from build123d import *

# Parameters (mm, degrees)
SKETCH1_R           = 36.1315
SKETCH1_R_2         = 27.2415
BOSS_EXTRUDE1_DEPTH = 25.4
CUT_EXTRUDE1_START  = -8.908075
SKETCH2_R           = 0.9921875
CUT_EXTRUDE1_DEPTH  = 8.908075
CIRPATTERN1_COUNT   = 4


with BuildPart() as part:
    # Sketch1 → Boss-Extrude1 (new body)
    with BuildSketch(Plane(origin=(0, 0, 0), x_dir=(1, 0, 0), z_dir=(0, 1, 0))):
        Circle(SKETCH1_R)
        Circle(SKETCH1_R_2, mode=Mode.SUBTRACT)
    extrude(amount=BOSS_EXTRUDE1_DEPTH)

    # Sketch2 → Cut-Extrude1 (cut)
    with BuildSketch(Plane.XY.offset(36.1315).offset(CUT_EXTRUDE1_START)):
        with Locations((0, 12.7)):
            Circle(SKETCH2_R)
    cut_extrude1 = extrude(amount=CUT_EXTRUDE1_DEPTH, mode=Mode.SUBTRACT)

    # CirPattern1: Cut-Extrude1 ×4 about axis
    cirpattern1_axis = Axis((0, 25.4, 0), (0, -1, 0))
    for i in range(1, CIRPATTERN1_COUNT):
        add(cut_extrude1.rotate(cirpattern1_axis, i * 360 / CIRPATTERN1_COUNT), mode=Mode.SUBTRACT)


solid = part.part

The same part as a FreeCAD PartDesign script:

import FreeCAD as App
import Part
import Sketcher
from FreeCAD import Vector
Q = App.Units.Quantity

doc = App.newDocument("Part")
body = doc.addObject("PartDesign::Body", "Body")

sketch1 = body.newObject("Sketcher::SketchObject", "Sketch")
sketch1.AttachmentSupport = (doc.getObject("XZ_Plane"), [""])
sketch1.MapMode = "FlatFace"
sketch1.addGeometry(Part.Circle(Vector(0, 0, 0), Vector(0, 0, 1), 36), False)
sketch1.addGeometry(Part.Circle(Vector(0, 0, 0), Vector(0, 0, 1), 27), False)
sketch1.addConstraint(Sketcher.Constraint("Coincident", 0, 3, -1, 1))
sketch1.addConstraint(Sketcher.Constraint("Coincident", 1, 3, -1, 1))
sketch1.addConstraint(Sketcher.Constraint("Diameter", 0, Q("2.845 in")))
sketch1.addConstraint(Sketcher.Constraint("Diameter", 1, Q("2.145 in")))
pad1 = body.newObject("PartDesign::Pad", "Pad")
pad1.Profile = sketch1
pad1.Length = Q("1 in")
pad1.Reversed = True

sketch2 = body.newObject("Sketcher::SketchObject", "Sketch001")
sketch2.AttachmentSupport = (doc.getObject("XY_Plane"), [""])
sketch2.MapMode = "FlatFace"
sketch2.AttachmentOffset = App.Placement(Vector(0, 0, 27.223425), App.Rotation())
sketch2.addGeometry(Part.Circle(Vector(0, 12.7, 0), Vector(0, 0, 1), 1), False)
sketch2.addConstraint(Sketcher.Constraint("PointOnObject", 0, 3, -2))
sketch2.addConstraint(Sketcher.Constraint("Diameter", 0, Q("0.078125 in")))
sketch2.addConstraint(Sketcher.Constraint("DistanceY", -1, 1, 0, 3, Q("0.5 in")))
pocket1 = body.newObject("PartDesign::Pocket", "Pocket")
pocket1.Profile = sketch2
pocket1.Length = 8.908075
pocket1.Reversed = True
doc.recompute()

polarpattern = body.newObject("PartDesign::PolarPattern", "PolarPattern")
polarpattern.Originals = [pocket1]
polarpattern.Axis = (doc.getObject("Y_Axis"), [""])
polarpattern.Angle = 360
polarpattern.Occurrences = 4
body.Tip = polarpattern

doc.recompute()
